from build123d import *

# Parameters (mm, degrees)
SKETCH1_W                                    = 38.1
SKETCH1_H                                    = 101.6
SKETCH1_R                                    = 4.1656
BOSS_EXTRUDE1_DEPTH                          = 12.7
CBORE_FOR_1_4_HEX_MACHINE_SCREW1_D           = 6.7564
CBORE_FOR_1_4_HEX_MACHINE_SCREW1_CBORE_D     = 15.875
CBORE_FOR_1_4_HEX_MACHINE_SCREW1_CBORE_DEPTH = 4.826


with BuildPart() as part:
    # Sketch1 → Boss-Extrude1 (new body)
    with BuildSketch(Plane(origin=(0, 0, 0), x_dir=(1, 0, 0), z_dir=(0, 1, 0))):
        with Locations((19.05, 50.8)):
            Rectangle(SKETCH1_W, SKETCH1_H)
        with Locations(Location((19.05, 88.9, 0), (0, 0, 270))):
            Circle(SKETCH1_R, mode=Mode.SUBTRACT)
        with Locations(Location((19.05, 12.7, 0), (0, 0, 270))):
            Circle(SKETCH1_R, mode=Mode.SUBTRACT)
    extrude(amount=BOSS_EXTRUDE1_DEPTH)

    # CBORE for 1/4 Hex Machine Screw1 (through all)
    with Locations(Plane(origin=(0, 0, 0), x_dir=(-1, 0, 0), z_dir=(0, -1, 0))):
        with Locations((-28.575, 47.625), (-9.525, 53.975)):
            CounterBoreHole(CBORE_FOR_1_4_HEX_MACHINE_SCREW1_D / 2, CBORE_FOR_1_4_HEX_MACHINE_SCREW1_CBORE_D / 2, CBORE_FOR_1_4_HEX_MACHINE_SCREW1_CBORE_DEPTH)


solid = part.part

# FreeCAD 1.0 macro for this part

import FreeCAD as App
import Part
import Sketcher
Q = App.Units.Quantity

doc = App.newDocument("Part")
params = doc.addObject("Spreadsheet::Sheet", "Params")
for row, (alias, value) in enumerate([
    ("sketch1_height", "4 in"),
    ("sketch1_diameter", "0.328 in"),
    ("sketch1_width", "1.5 in"),
    ("pad1_length", "0.5 in"),
    ("sketch2_diameter", "0.266 in"),
    ("hole_diameter", "0.266 in"),
    ("hole_cbore_diameter", "0.625 in"),
    ("hole_cbore_depth", "0.19 in"),
], start=1):
    params.set(f"A{row}", alias)
    params.set(f"B{row}", "=" + value)
    params.setAlias(f"B{row}", alias)

body = doc.addObject("PartDesign::Body", "Body")

# Sketch on XZ plane
sketch1 = doc.addObject("Sketcher::SketchObject", "Sketch")
body.addObject(sketch1)
sketch1.AttachmentSupport = (doc.XZ_Plane, [""])
sketch1.MapMode = "FlatFace"
sketch1.addGeometry([
    Part.LineSegment(App.Vector(0, -101.6, 0), App.Vector(0, 0, 0)),  # 0
    Part.LineSegment(App.Vector(0, 0, 0), App.Vector(38.1, 0, 0)),  # 1
    Part.LineSegment(App.Vector(38.1, 0, 0), App.Vector(38.1, -101.6, 0)),  # 2
    Part.LineSegment(App.Vector(38.1, -101.6, 0), App.Vector(0, -101.6, 0)),  # 3
    Part.Circle(App.Vector(19.05, -12.7, 0), App.Vector(0, 0, 1), 4.1656),  # 4
    Part.Circle(App.Vector(19.05, -88.9, 0), App.Vector(0, 0, 1), 4.1656),  # 5
], False)
sketch1.addConstraint([
    Sketcher.Constraint("Coincident", 0, 2, 1, 1),
    Sketcher.Constraint("Coincident", 1, 2, 2, 1),
    Sketcher.Constraint("Coincident", 2, 2, 3, 1),
    Sketcher.Constraint("Coincident", 3, 2, 0, 1),
    Sketcher.Constraint("Vertical", 0),
    Sketcher.Constraint("Horizontal", 1),
    Sketcher.Constraint("Vertical", 2),
    Sketcher.Constraint("Horizontal", 3),
    Sketcher.Constraint("Coincident", 0, 2, -1, 1),
    Sketcher.Constraint("Equal", 4, 5),
    Sketcher.Constraint("Vertical", 4, 3, 5, 3),
    Sketcher.Constraint("DistanceY", 0, 1, 0, 2, Q("4 in")),
    Sketcher.Constraint("Diameter", 4, Q("0.328 in")),
    Sketcher.Constraint("DistanceX", 1, 1, 1, 2, Q("1.5 in")),
    Sketcher.Constraint("DistanceY", 5, 3, 4, 3, Q("3 in")),
    Sketcher.Constraint("DistanceY", 4, 3, -1, 1, Q("0.5 in")),
    Sketcher.Constraint("DistanceX", -1, 1, 4, 3, Q("0.75 in")),
])
sketch1.setExpression("Constraints[11]", "Params.sketch1_height")
sketch1.setExpression("Constraints[12]", "Params.sketch1_diameter")
sketch1.setExpression("Constraints[13]", "Params.sketch1_width")
pad1 = doc.addObject("PartDesign::Pad", "Pad")
body.addObject(pad1)
pad1.Profile = sketch1
pad1.setExpression("Length", "Params.pad1_length")
pad1.Reversed = True

# Sketch on XZ plane
sketch2 = doc.addObject("Sketcher::SketchObject", "Sketch001")
body.addObject(sketch2)
sketch2.AttachmentSupport = (doc.XZ_Plane, [""])
sketch2.MapMode = "FlatFace"
sketch2.addGeometry([
    Part.Circle(App.Vector(28.575, -47.625, 0), App.Vector(0, 0, 1), 3.3782),
    Part.Circle(App.Vector(9.525, -53.975, 0), App.Vector(0, 0, 1), 3.3782),
], False)
sketch2.addConstraint([
    Sketcher.Constraint("Equal", 0, 1),
    Sketcher.Constraint("Diameter", 0, Q("0.266 in")),
    Sketcher.Constraint("DistanceX", 1, 3, 0, 3, Q("0.75 in")),
    Sketcher.Constraint("DistanceY", 1, 3, 0, 3, Q("0.25 in")),
    Sketcher.Constraint("DistanceX", -1, 1, 0, 3, Q("1.125 in")),
    Sketcher.Constraint("DistanceY", 0, 3, -1, 1, Q("1.875 in")),
])
sketch2.setExpression("Constraints[1]", "Params.sketch2_diameter")
doc.recompute()
hole = doc.addObject("PartDesign::Hole", "Hole")
body.addObject(hole)
hole.Profile = sketch2
hole.ThreadType = "None"
hole.setExpression("Diameter", "Params.hole_diameter")
hole.DepthType = "ThroughAll"
hole.HoleCutType = "Counterbore"
hole.setExpression("HoleCutDiameter", "Params.hole_cbore_diameter")
hole.setExpression("HoleCutDepth", "Params.hole_cbore_depth")

doc.recompute()
